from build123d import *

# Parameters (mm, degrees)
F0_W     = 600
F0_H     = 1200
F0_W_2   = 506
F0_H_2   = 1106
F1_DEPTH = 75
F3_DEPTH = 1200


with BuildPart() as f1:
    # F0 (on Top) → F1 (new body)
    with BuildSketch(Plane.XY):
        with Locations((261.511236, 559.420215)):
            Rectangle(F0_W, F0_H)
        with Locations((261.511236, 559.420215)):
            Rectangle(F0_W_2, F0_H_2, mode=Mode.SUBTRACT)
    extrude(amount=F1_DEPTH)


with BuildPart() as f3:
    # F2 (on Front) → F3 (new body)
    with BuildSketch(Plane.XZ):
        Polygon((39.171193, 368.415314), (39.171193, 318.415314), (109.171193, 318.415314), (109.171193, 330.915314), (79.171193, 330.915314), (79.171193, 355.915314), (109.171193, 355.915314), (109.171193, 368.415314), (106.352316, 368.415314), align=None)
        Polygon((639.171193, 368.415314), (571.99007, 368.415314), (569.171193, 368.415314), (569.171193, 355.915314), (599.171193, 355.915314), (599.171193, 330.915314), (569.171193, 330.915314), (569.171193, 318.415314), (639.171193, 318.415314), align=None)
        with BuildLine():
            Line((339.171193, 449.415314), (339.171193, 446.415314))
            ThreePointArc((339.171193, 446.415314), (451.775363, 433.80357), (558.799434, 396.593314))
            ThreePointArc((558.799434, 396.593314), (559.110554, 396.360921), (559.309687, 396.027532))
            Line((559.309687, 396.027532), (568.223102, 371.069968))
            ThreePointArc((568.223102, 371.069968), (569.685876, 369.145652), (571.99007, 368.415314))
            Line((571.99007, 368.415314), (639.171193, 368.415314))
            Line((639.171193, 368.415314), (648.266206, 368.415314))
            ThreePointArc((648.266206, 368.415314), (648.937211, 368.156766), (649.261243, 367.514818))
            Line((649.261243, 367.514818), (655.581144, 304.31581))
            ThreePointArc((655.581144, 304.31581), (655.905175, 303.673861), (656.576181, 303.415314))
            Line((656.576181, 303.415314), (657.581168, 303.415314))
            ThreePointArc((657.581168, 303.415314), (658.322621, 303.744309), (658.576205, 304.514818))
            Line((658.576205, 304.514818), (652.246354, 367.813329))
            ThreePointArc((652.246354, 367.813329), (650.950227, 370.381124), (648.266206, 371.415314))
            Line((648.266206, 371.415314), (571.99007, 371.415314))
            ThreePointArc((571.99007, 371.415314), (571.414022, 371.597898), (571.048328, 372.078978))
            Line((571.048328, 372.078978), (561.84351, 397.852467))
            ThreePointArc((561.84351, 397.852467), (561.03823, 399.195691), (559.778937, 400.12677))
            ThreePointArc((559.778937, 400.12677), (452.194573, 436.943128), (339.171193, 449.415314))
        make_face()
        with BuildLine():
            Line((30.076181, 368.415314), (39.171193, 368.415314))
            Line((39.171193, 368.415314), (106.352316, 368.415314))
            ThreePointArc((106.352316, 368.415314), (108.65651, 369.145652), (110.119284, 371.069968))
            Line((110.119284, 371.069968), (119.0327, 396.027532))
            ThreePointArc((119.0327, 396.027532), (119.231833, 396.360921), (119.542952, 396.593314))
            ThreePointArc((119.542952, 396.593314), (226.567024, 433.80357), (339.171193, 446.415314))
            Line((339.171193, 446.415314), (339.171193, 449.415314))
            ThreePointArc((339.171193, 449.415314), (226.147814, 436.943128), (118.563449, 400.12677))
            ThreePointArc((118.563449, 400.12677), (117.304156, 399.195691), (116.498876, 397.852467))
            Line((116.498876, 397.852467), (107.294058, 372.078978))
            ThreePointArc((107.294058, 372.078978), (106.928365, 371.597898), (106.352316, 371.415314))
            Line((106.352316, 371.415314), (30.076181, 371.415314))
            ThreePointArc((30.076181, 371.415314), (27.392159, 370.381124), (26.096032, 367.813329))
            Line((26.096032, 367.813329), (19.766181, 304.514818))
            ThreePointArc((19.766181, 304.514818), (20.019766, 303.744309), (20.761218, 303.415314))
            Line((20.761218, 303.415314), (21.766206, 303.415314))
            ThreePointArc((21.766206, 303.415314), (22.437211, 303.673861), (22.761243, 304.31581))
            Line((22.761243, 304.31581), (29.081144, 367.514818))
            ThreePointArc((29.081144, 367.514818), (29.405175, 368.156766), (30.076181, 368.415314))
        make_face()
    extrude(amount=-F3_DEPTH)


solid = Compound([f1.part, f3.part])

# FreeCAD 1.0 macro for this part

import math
import FreeCAD as App
import Part
import Sketcher
Q = App.Units.Quantity

doc = App.newDocument("Part")
body = doc.addObject("PartDesign::Body", "Body")

# Sketch on XY plane
sketch1 = doc.addObject("Sketcher::SketchObject", "Sketch")
body.addObject(sketch1)
sketch1.AttachmentSupport = (doc.XY_Plane, [""])
sketch1.MapMode = "FlatFace"
sketch1.addGeometry([
    Part.LineSegment(App.Vector(-38, 1159, 0), App.Vector(-38, -41, 0)),  # 0
    Part.LineSegment(App.Vector(-38, -41, 0), App.Vector(562, -41, 0)),  # 1
    Part.LineSegment(App.Vector(562, -41, 0), App.Vector(562, 1159, 0)),  # 2
    Part.LineSegment(App.Vector(562, 1159, 0), App.Vector(-38, 1159, 0)),  # 3
    Part.LineSegment(App.Vector(515, 6, 0), App.Vector(9, 6, 0)),  # 4
    Part.LineSegment(App.Vector(9, 6, 0), App.Vector(9, 1112, 0)),  # 5
    Part.LineSegment(App.Vector(9, 1112, 0), App.Vector(515, 1112, 0)),  # 6
    Part.LineSegment(App.Vector(515, 1112, 0), App.Vector(515, 6, 0)),  # 7
], False)
sketch1.addConstraint([
    Sketcher.Constraint("Coincident", 0, 2, 1, 1),
    Sketcher.Constraint("Coincident", 1, 2, 2, 1),
    Sketcher.Constraint("Coincident", 2, 2, 3, 1),
    Sketcher.Constraint("Coincident", 3, 2, 0, 1),
    Sketcher.Constraint("Coincident", 4, 2, 5, 1),
    Sketcher.Constraint("Coincident", 5, 2, 6, 1),
    Sketcher.Constraint("Coincident", 6, 2, 7, 1),
    Sketcher.Constraint("Coincident", 7, 2, 4, 1),
    Sketcher.Constraint("Vertical", 0),
    Sketcher.Constraint("Horizontal", 1),
    Sketcher.Constraint("Vertical", 2),
    Sketcher.Constraint("Horizontal", 3),
    Sketcher.Constraint("Horizontal", 4),
    Sketcher.Constraint("Vertical", 5),
    Sketcher.Constraint("Horizontal", 6),
    Sketcher.Constraint("Vertical", 7),
    Sketcher.Constraint("DistanceX", 1, 1, 1, 2, Q("600 mm")),
    Sketcher.Constraint("DistanceX", 4, 2, 4, 1, Q("506 mm")),
    Sketcher.Constraint("DistanceY", 0, 2, 0, 1, Q("1200 mm")),
    Sketcher.Constraint("DistanceY", 5, 1, 5, 2, Q("1106 mm")),
    Sketcher.Constraint("DistanceX", 0, 2, 4, 2, Q("47 mm")),
    Sketcher.Constraint("DistanceY", 0, 2, 4, 2, Q("47 mm")),
    Sketcher.Constraint("DistanceX", 0, 2, -1, 1, Q("38.488764 mm")),
    Sketcher.Constraint("DistanceY", 0, 2, -1, 1, Q("40.579785 mm")),
])
pad1 = doc.addObject("PartDesign::Pad", "Pad")
body.addObject(pad1)
pad1.Profile = sketch1
pad1.Length = 75
body2 = doc.addObject("PartDesign::Body", "Body001")

# Sketch on XZ plane
sketch2 = doc.addObject("Sketcher::SketchObject", "Sketch001")
body2.addObject(sketch2)
sketch2.AttachmentSupport = (doc.getObject("XZ_Plane001"), [""])
sketch2.MapMode = "FlatFace"
sketch2.addGeometry([
    Part.LineSegment(App.Vector(39.2, 368.4, 0), App.Vector(39.2, 318.4, 0)),  # 0
    Part.LineSegment(App.Vector(39.2, 318.4, 0), App.Vector(109.2, 318.4, 0)),  # 1
    Part.LineSegment(App.Vector(109.2, 318.4, 0), App.Vector(109.2, 330.9, 0)),  # 2
    Part.LineSegment(App.Vector(109.2, 330.9, 0), App.Vector(79.2, 330.9, 0)),  # 3
    Part.LineSegment(App.Vector(79.2, 330.9, 0), App.Vector(79.2, 355.9, 0)),  # 4
    Part.LineSegment(App.Vector(79.2, 355.9, 0), App.Vector(109.2, 355.9, 0)),  # 5
    Part.LineSegment(App.Vector(109.2, 355.9, 0), App.Vector(109.2, 368.4, 0)),  # 6
    Part.LineSegment(App.Vector(109.2, 368.4, 0), App.Vector(106.4, 368.4, 0)),  # 7
    Part.ArcOfCircle(Part.Circle(App.Vector(106.4, 372.4, 0), App.Vector(0, 0, 1), 4), math.radians(-90), math.radians(-20)),  # 8
    Part.LineSegment(App.Vector(110.1, 371.1, 0), App.Vector(119, 396, 0)),  # 9
    Part.ArcOfCircle(Part.Circle(App.Vector(120, 395.7, 0), App.Vector(0, 0, 1), 1), math.radians(116), math.radians(160)),  # 10
    Part.ArcOfCircle(Part.Circle(App.Vector(339.2, -62.6, 0), App.Vector(0, 0, 1), 509), math.radians(90), math.radians(116)),  # 11
    Part.ArcOfCircle(Part.Circle(App.Vector(339.2, -62.6, 0), App.Vector(0, 0, 1), 509), math.radians(64), math.radians(90)),  # 12
    Part.ArcOfCircle(Part.Circle(App.Vector(558.4, 395.7, 0), App.Vector(0, 0, 1), 1), math.radians(20), math.radians(64)),  # 13
    Part.LineSegment(App.Vector(559.3, 396, 0), App.Vector(568.2, 371.1, 0)),  # 14
    Part.ArcOfCircle(Part.Circle(App.Vector(572, 372.4, 0), App.Vector(0, 0, 1), 4), math.radians(-160), math.radians(-90)),  # 15
    Part.LineSegment(App.Vector(572, 368.4, 0), App.Vector(569.2, 368.4, 0)),  # 16
    Part.LineSegment(App.Vector(569.2, 368.4, 0), App.Vector(569.2, 355.9, 0)),  # 17
    Part.LineSegment(App.Vector(569.2, 355.9, 0), App.Vector(599.2, 355.9, 0)),  # 18
    Part.LineSegment(App.Vector(599.2, 355.9, 0), App.Vector(599.2, 330.9, 0)),  # 19
    Part.LineSegment(App.Vector(599.2, 330.9, 0), App.Vector(569.2, 330.9, 0)),  # 20
    Part.LineSegment(App.Vector(569.2, 330.9, 0), App.Vector(569.2, 318.4, 0)),  # 21
    Part.LineSegment(App.Vector(569.2, 318.4, 0), App.Vector(639.2, 318.4, 0)),  # 22
    Part.LineSegment(App.Vector(639.2, 318.4, 0), App.Vector(639.2, 368.4, 0)),  # 23
    Part.LineSegment(App.Vector(639.2, 368.4, 0), App.Vector(648.3, 368.4, 0)),  # 24
    Part.ArcOfCircle(Part.Circle(App.Vector(648.3, 367.4, 0), App.Vector(0, 0, 1), 1), math.radians(6), math.radians(90)),  # 25
    Part.LineSegment(App.Vector(649.3, 367.5, 0), App.Vector(655.6, 304.3, 0)),  # 26
    Part.ArcOfCircle(Part.Circle(App.Vector(656.6, 304.4, 0), App.Vector(0, 0, 1), 1), math.radians(-174), math.radians(-90)),  # 27
    Part.LineSegment(App.Vector(656.6, 303.4, 0), App.Vector(657.6, 303.4, 0)),  # 28
    Part.ArcOfCircle(Part.Circle(App.Vector(657.6, 304.4, 0), App.Vector(0, 0, 1), 1), math.radians(-90), math.radians(6)),  # 29
    Part.LineSegment(App.Vector(658.6, 304.5, 0), App.Vector(652.2, 367.8, 0)),  # 30
    Part.ArcOfCircle(Part.Circle(App.Vector(648.3, 367.4, 0), App.Vector(0, 0, 1), 4), math.radians(6), math.radians(90)),  # 31
    Part.LineSegment(App.Vector(648.3, 371.4, 0), App.Vector(572, 371.4, 0)),  # 32
    Part.ArcOfCircle(Part.Circle(App.Vector(572, 372.4, 0), App.Vector(0, 0, 1), 1), math.radians(-160), math.radians(-90)),  # 33
    Part.LineSegment(App.Vector(571, 372.1, 0), App.Vector(561.8, 397.9, 0)),  # 34
    Part.ArcOfCircle(Part.Circle(App.Vector(558.1, 396.5, 0), App.Vector(0, 0, 1), 4), math.radians(20), math.radians(65)),  # 35
    Part.ArcOfCircle(Part.Circle(App.Vector(339.2, -68.9, 0), App.Vector(0, 0, 1), 518.3), math.radians(65), math.radians(90)),  # 36
    Part.ArcOfCircle(Part.Circle(App.Vector(339.2, -68.9, 0), App.Vector(0, 0, 1), 518.3), math.radians(90), math.radians(115)),  # 37
    Part.ArcOfCircle(Part.Circle(App.Vector(120.3, 396.5, 0), App.Vector(0, 0, 1), 4), math.radians(115), math.radians(160)),  # 38
    Part.LineSegment(App.Vector(116.5, 397.9, 0), App.Vector(107.3, 372.1, 0)),  # 39
    Part.ArcOfCircle(Part.Circle(App.Vector(106.4, 372.4, 0), App.Vector(0, 0, 1), 1), math.radians(-90), math.radians(-20)),  # 40
    Part.LineSegment(App.Vector(106.4, 371.4, 0), App.Vector(30.1, 371.4, 0)),  # 41
    Part.ArcOfCircle(Part.Circle(App.Vector(30.1, 367.4, 0), App.Vector(0, 0, 1), 4), math.radians(90), math.radians(174)),  # 42
    Part.LineSegment(App.Vector(26.1, 367.8, 0), App.Vector(19.8, 304.5, 0)),  # 43
    Part.ArcOfCircle(Part.Circle(App.Vector(20.8, 304.4, 0), App.Vector(0, 0, 1), 1), math.radians(174), math.radians(270)),  # 44
    Part.LineSegment(App.Vector(20.8, 303.4, 0), App.Vector(21.8, 303.4, 0)),  # 45
    Part.ArcOfCircle(Part.Circle(App.Vector(21.8, 304.4, 0), App.Vector(0, 0, 1), 1), math.radians(-90), math.radians(-6)),  # 46
    Part.LineSegment(App.Vector(22.8, 304.3, 0), App.Vector(29.1, 367.5, 0)),  # 47
    Part.ArcOfCircle(Part.Circle(App.Vector(30.1, 367.4, 0), App.Vector(0, 0, 1), 1), math.radians(90), math.radians(174)),  # 48
    Part.LineSegment(App.Vector(30.1, 368.4, 0), App.Vector(39.2, 368.4, 0)),  # 49
], False)
sketch2.addConstraint([
    Sketcher.Constraint("Coincident", 0, 2, 1, 1),
    Sketcher.Constraint("Coincident", 1, 2, 2, 1),
    Sketcher.Constraint("Coincident", 2, 2, 3, 1),
    Sketcher.Constraint("Coincident", 3, 2, 4, 1),
    Sketcher.Constraint("Coincident", 4, 2, 5, 1),
    Sketcher.Constraint("Coincident", 5, 2, 6, 1),
    Sketcher.Constraint("Coincident", 6, 2, 7, 1),
    Sketcher.Constraint("Tangent", 7, 2, 8, 1),
    Sketcher.Constraint("Tangent", 8, 2, 9, 1),
    Sketcher.Constraint("Tangent", 9, 2, 10, 2),
    Sketcher.Constraint("Tangent", 10, 1, 11, 2),
    Sketcher.Constraint("Coincident", 11, 1, 12, 2),
    Sketcher.Constraint("Tangent", 12, 1, 13, 2),
    Sketcher.Constraint("Tangent", 13, 1, 14, 1),
    Sketcher.Constraint("Tangent", 14, 2, 15, 1),
    Sketcher.Constraint("Tangent", 15, 2, 16, 1),
    Sketcher.Constraint("Coincident", 16, 2, 17, 1),
    Sketcher.Constraint("Coincident", 17, 2, 18, 1),
    Sketcher.Constraint("Coincident", 18, 2, 19, 1),
    Sketcher.Constraint("Coincident", 19, 2, 20, 1),
    Sketcher.Constraint("Coincident", 20, 2, 21, 1),
    Sketcher.Constraint("Coincident", 21, 2, 22, 1),
    Sketcher.Constraint("Coincident", 22, 2, 23, 1),
    Sketcher.Constraint("Coincident", 23, 2, 24, 1),
    Sketcher.Constraint("Tangent", 24, 2, 25, 2),
    Sketcher.Constraint("Tangent", 25, 1, 26, 1),
    Sketcher.Constraint("Coincident", 26, 2, 27, 1),
    Sketcher.Constraint("Coincident", 27, 2, 28, 1),
    Sketcher.Constraint("Tangent", 28, 2, 29, 1),
    Sketcher.Constraint("Tangent", 29, 2, 30, 1),
    Sketcher.Constraint("Tangent", 30, 2, 31, 1),
    Sketcher.Constraint("Tangent", 31, 2, 32, 1),
    Sketcher.Constraint("Tangent", 32, 2, 33, 2),
    Sketcher.Constraint("Tangent", 33, 1, 34, 1),
    Sketcher.Constraint("Tangent", 34, 2, 35, 1),
    Sketcher.Constraint("Tangent", 35, 2, 36, 1),
    Sketcher.Constraint("Coincident", 36, 2, 37, 1),
    Sketcher.Constraint("Tangent", 37, 2, 38, 1),
    Sketcher.Constraint("Tangent", 38, 2, 39, 1),
    Sketcher.Constraint("Coincident", 39, 2, 40, 2),
    Sketcher.Constraint("Coincident", 40, 1, 41, 1),
    Sketcher.Constraint("Tangent", 41, 2, 42, 1),
    Sketcher.Constraint("Tangent", 42, 2, 43, 1),
    Sketcher.Constraint("Tangent", 43, 2, 44, 1),
    Sketcher.Constraint("Tangent", 44, 2, 45, 1),
    Sketcher.Constraint("Tangent", 45, 2, 46, 1),
    Sketcher.Constraint("Tangent", 46, 2, 47, 1),
    Sketcher.Constraint("Tangent", 47, 2, 48, 2),
    Sketcher.Constraint("Tangent", 48, 1, 49, 1),
    Sketcher.Constraint("Coincident", 49, 2, 0, 1),
    Sketcher.Constraint("Vertical", 0),
    Sketcher.Constraint("Horizontal", 1),
    Sketcher.Constraint("Vertical", 2),
    Sketcher.Constraint("Horizontal", 3),
    Sketcher.Constraint("Vertical", 4),
    Sketcher.Constraint("Horizontal", 5),
    Sketcher.Constraint("Vertical", 6),
    Sketcher.Constraint("Horizontal", 7),
    Sketcher.Constraint("Horizontal", 16),
    Sketcher.Constraint("Vertical", 17),
    Sketcher.Constraint("Horizontal", 18),
    Sketcher.Constraint("Vertical", 19),
    Sketcher.Constraint("Horizontal", 20),
    Sketcher.Constraint("Vertical", 21),
    Sketcher.Constraint("Horizontal", 22),
    Sketcher.Constraint("Vertical", 23),
    Sketcher.Constraint("Horizontal", 24),
    Sketcher.Constraint("Horizontal", 28),
    Sketcher.Constraint("Horizontal", 32),
    Sketcher.Constraint("Horizontal", 41),
    Sketcher.Constraint("Horizontal", 45),
    Sketcher.Constraint("Horizontal", 49),
    Sketcher.Constraint("Coincident", 31, 3, 25, 3),
    Sketcher.Constraint("Coincident", 33, 3, 15, 3),
    Sketcher.Constraint("Coincident", 40, 3, 8, 3),
    Sketcher.Constraint("Coincident", 48, 3, 42, 3),
    Sketcher.Constraint("Equal", 8, 15),
    Sketcher.Constraint("Equal", 13, 25),
    Sketcher.Constraint("Equal", 25, 29),
    Sketcher.Constraint("Equal", 29, 33),
    Sketcher.Constraint("Equal", 15, 35),
    Sketcher.Constraint("Equal", 35, 38),
    Sketcher.Constraint("Equal", 27, 40),
    Sketcher.Constraint("Equal", 31, 42),
    Sketcher.Constraint("Equal", 33, 44),
    Sketcher.Constraint("Equal", 44, 46),
    Sketcher.Constraint("Equal", 46, 48),
    Sketcher.Constraint("Parallel", 26, 30),
    Sketcher.Constraint("Parallel", 14, 34),
    Sketcher.Constraint("Parallel", 9, 39),
    Sketcher.Constraint("Parallel", 43, 47),
    Sketcher.Constraint("Horizontal", 10, 3, 13, 3),
    Sketcher.Constraint("Horizontal", 8, 3, 15, 3),
    Sketcher.Constraint("Horizontal", 35, 3, 38, 3),
    Sketcher.Constraint("Horizontal", 31, 3, 42, 3),
    Sketcher.Constraint("Horizontal", 29, 3, 44, 3),
    Sketcher.Constraint("Horizontal", 10, 1, 12, 1),
    Sketcher.Constraint("Horizontal", 9, 2, 13, 1),
    Sketcher.Constraint("Horizontal", 5, 2, 17, 2),
    Sketcher.Constraint("Horizontal", 3, 2, 19, 2),
    Sketcher.Constraint("Horizontal", 1, 2, 21, 2),
    Sketcher.Constraint("Horizontal", 16, 2, 23, 2),
    Sketcher.Constraint("Horizontal", 33, 1, 39, 2),
    Sketcher.Constraint("Horizontal", 30, 2, 42, 2),
    Sketcher.Constraint("Horizontal", 26, 2, 46, 2),
    Sketcher.Constraint("Vertical", 12, 3, 36, 3),
    Sketcher.Constraint("Vertical", 11, 3, 37, 3),
    Sketcher.Constraint("Vertical", 2, 2, 5, 2),
    Sketcher.Constraint("Vertical", 12, 3, 11, 1),
    Sketcher.Constraint("Vertical", 17, 2, 20, 2),
    Sketcher.Constraint("Vertical", 11, 1, 36, 2),
    Sketcher.Constraint("Vertical", 7, 2, 40, 1),
    Sketcher.Constraint("Equal", 7, 16),
    Sketcher.Constraint("Equal", 5, 18),
    Sketcher.Constraint("Equal", 1, 22),
    Sketcher.Constraint("Equal", 32, 41),
    Sketcher.Constraint("Equal", 28, 45),
    Sketcher.Constraint("Equal", 2, 6),
    Sketcher.Constraint("Radius", 8, Q("4.000002 mm")),
    Sketcher.Constraint("Radius", 13, Q("1 mm")),
    Sketcher.Constraint("DistanceX", 1, 1, 1, 2, Q("70 mm")),
    Sketcher.Constraint("DistanceX", 3, 2, 3, 1, Q("30 mm")),
    Sketcher.Constraint("DistanceY", 0, 2, 0, 1, Q("50 mm")),
    Sketcher.Constraint("DistanceY", 4, 1, 4, 2, Q("25 mm")),
    Sketcher.Constraint("Radius", 36, Q("518.34701 mm")),
    Sketcher.Constraint("Radius", 37, Q("518.347019 mm")),
    Sketcher.Constraint("Radius", 11, Q("509.000015 mm")),
    Sketcher.Constraint("DistanceY", 11, 3, -1, 1, Q("62.584701 mm")),
    Sketcher.Constraint("DistanceX", -1, 1, 37, 3, Q("339.171199 mm")),
    Sketcher.Constraint("DistanceX", -1, 1, 9, 2, Q("119.0327 mm")),
    Sketcher.Constraint("DistanceX", -1, 1, 14, 2, Q("568.223102 mm")),
    Sketcher.Constraint("Distance", 9, Q("26.50149 mm")),
    Sketcher.Constraint("Distance", 34, Q("27.36789 mm")),
    Sketcher.Constraint("DistanceX", 7, 2, 7, 1, Q("2.818877 mm")),
    Sketcher.Constraint("DistanceX", 24, 1, 24, 2, Q("9.095013 mm")),
    Sketcher.Constraint("DistanceX", -1, 1, 12, 3, Q("339.171191 mm")),
    Sketcher.Constraint("DistanceX", -1, 1, 27, 3, Q("656.576179 mm")),
    Sketcher.Constraint("DistanceY", -1, 1, 27, 3, Q("304.415311 mm")),
])
pad2 = doc.addObject("PartDesign::Pad", "Pad001")
body2.addObject(pad2)
pad2.Profile = sketch2
pad2.Length = 1200
pad2.Reversed = True

doc.recompute()
